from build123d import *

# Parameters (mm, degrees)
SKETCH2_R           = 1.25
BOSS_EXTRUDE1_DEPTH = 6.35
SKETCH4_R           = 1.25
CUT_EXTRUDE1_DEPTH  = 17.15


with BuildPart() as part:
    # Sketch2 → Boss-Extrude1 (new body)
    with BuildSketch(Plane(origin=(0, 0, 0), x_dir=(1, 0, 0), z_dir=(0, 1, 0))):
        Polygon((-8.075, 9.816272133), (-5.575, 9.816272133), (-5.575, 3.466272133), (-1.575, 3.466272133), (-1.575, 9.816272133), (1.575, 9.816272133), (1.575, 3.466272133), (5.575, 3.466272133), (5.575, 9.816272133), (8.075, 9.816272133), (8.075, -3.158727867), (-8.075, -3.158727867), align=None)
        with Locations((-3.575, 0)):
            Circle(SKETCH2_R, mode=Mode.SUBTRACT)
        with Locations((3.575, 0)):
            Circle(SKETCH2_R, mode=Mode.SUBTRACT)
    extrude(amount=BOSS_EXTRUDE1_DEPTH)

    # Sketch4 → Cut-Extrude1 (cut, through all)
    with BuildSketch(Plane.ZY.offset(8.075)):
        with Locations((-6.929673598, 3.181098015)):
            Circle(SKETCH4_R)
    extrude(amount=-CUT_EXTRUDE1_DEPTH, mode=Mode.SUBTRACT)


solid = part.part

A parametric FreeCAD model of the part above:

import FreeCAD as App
import Part
import Sketcher
Q = App.Units.Quantity


def add_polygon(sketch, points):
    """Adds a closed chain of lines whose ends are joined by coincident constraints."""
    first, n = sketch.GeometryCount, len(points)
    for a, b in zip(points, points[1:] + points[:1]):
        sketch.addGeometry(Part.LineSegment(App.Vector(*a, 0), App.Vector(*b, 0)), False)
    for i in range(n):
        sketch.addConstraint(Sketcher.Constraint("Coincident", first + i, 2, first + (i + 1) % n, 1))

doc = App.newDocument("Part")
body = doc.addObject("PartDesign::Body", "Body")

# Sketch on XZ plane
sketch1 = doc.addObject("Sketcher::SketchObject", "Sketch")
body.addObject(sketch1)
sketch1.AttachmentSupport = (doc.XZ_Plane, [""])
sketch1.MapMode = "FlatFace"
add_polygon(sketch1, [(-5.575, -9.816272), (-8.075, -9.816272), (-8.075, 3.158728), (8.075, 3.158728), (8.075, -9.816272), (5.575, -9.816272), (5.575, -3.466272), (1.575, -3.466272), (1.575, -9.816272), (-1.575, -9.816272), (-1.575, -3.466272), (-5.575, -3.466272)])  # lines 0-11
sketch1.addGeometry(Part.Circle(App.Vector(3.575, 0, 0), App.Vector(0, 0, 1), 1.25), False)  # 12
sketch1.addGeometry(Part.Circle(App.Vector(-3.575, 0, 0), App.Vector(0, 0, 1), 1.25), False)  # 13
sketch1.addConstraint(Sketcher.Constraint("Horizontal", 0))
sketch1.addConstraint(Sketcher.Constraint("Vertical", 1))
sketch1.addConstraint(Sketcher.Constraint("Horizontal", 2))
sketch1.addConstraint(Sketcher.Constraint("Vertical", 3))
sketch1.addConstraint(Sketcher.Constraint("Horizontal", 4))
sketch1.addConstraint(Sketcher.Constraint("Vertical", 5))
sketch1.addConstraint(Sketcher.Constraint("Horizontal", 6))
sketch1.addConstraint(Sketcher.Constraint("Vertical", 7))
sketch1.addConstraint(Sketcher.Constraint("Horizontal", 8))
sketch1.addConstraint(Sketcher.Constraint("Vertical", 9))
sketch1.addConstraint(Sketcher.Constraint("Horizontal", 10))
sketch1.addConstraint(Sketcher.Constraint("Vertical", 11))
sketch1.addConstraint(Sketcher.Constraint("Equal", 12, 13))
sketch1.addConstraint(Sketcher.Constraint("Symmetric", 12, 3, 13, 3, -1, 1))
sketch1.addConstraint(Sketcher.Constraint("Symmetric", 0, 2, 3, 2, -2))
sketch1.addConstraint(Sketcher.Constraint("Symmetric", 6, 2, 9, 2, -2))
sketch1.addConstraint(Sketcher.Constraint("PointOnObject", 12, 3, -1))
sketch1.addConstraint(Sketcher.Constraint("Horizontal", 4, 2, 7, 2))
sketch1.addConstraint(Sketcher.Constraint("Equal", 0, 4))
sketch1.addConstraint(Sketcher.Constraint("Diameter", 12, Q("2.5 mm")))
sketch1.addConstraint(Sketcher.Constraint("DistanceX", 6, 2, 6, 1, Q("4 mm")))
sketch1.addConstraint(Sketcher.Constraint("DistanceX", 0, 2, 0, 1, Q("2.5 mm")))
sketch1.addConstraint(Sketcher.Constraint("DistanceX", 12, 3, 4, 2, Q("2 mm")))
sketch1.addConstraint(Sketcher.Constraint("DistanceX", 2, 1, 2, 2, Q("16.15 mm")))
sketch1.addConstraint(Sketcher.Constraint("DistanceY", 5, 1, 5, 2, Q("6.35 mm")))
sketch1.addConstraint(Sketcher.Constraint("DistanceY", 1, 1, 1, 2, Q("12.975 mm")))
sketch1.addConstraint(Sketcher.Constraint("DistanceY", 0, 2, -1, 1, Q("9.816272 mm")))
pad1 = doc.addObject("PartDesign::Pad", "Pad")
body.addObject(pad1)
pad1.Profile = sketch1
pad1.Length = 6.35
pad1.Reversed = True

# Sketch on YZ plane
sketch2 = doc.addObject("Sketcher::SketchObject", "Sketch001")
body.addObject(sketch2)
sketch2.AttachmentSupport = (doc.YZ_Plane, [""])
sketch2.MapMode = "FlatFace"
sketch2.AttachmentOffset = App.Placement(App.Vector(0, 0, -8.075), App.Rotation())
sketch2.addGeometry(Part.Circle(App.Vector(3.181098, -6.929674, 0), App.Vector(0, 0, 1), 1.25), False)
sketch2.addConstraint(Sketcher.Constraint("Diameter", 0, Q("2.5 mm")))
sketch2.addConstraint(Sketcher.Constraint("DistanceX", -1, 1, 0, 3, Q("3.181098 mm")))
sketch2.addConstraint(Sketcher.Constraint("DistanceY", 0, 3, -1, 1, Q("6.929674 mm")))
pocket1 = doc.addObject("PartDesign::Pocket", "Pocket")
body.addObject(pocket1)
pocket1.Profile = sketch2
pocket1.Type = "ThroughAll"
pocket1.Reversed = True

doc.recompute()
